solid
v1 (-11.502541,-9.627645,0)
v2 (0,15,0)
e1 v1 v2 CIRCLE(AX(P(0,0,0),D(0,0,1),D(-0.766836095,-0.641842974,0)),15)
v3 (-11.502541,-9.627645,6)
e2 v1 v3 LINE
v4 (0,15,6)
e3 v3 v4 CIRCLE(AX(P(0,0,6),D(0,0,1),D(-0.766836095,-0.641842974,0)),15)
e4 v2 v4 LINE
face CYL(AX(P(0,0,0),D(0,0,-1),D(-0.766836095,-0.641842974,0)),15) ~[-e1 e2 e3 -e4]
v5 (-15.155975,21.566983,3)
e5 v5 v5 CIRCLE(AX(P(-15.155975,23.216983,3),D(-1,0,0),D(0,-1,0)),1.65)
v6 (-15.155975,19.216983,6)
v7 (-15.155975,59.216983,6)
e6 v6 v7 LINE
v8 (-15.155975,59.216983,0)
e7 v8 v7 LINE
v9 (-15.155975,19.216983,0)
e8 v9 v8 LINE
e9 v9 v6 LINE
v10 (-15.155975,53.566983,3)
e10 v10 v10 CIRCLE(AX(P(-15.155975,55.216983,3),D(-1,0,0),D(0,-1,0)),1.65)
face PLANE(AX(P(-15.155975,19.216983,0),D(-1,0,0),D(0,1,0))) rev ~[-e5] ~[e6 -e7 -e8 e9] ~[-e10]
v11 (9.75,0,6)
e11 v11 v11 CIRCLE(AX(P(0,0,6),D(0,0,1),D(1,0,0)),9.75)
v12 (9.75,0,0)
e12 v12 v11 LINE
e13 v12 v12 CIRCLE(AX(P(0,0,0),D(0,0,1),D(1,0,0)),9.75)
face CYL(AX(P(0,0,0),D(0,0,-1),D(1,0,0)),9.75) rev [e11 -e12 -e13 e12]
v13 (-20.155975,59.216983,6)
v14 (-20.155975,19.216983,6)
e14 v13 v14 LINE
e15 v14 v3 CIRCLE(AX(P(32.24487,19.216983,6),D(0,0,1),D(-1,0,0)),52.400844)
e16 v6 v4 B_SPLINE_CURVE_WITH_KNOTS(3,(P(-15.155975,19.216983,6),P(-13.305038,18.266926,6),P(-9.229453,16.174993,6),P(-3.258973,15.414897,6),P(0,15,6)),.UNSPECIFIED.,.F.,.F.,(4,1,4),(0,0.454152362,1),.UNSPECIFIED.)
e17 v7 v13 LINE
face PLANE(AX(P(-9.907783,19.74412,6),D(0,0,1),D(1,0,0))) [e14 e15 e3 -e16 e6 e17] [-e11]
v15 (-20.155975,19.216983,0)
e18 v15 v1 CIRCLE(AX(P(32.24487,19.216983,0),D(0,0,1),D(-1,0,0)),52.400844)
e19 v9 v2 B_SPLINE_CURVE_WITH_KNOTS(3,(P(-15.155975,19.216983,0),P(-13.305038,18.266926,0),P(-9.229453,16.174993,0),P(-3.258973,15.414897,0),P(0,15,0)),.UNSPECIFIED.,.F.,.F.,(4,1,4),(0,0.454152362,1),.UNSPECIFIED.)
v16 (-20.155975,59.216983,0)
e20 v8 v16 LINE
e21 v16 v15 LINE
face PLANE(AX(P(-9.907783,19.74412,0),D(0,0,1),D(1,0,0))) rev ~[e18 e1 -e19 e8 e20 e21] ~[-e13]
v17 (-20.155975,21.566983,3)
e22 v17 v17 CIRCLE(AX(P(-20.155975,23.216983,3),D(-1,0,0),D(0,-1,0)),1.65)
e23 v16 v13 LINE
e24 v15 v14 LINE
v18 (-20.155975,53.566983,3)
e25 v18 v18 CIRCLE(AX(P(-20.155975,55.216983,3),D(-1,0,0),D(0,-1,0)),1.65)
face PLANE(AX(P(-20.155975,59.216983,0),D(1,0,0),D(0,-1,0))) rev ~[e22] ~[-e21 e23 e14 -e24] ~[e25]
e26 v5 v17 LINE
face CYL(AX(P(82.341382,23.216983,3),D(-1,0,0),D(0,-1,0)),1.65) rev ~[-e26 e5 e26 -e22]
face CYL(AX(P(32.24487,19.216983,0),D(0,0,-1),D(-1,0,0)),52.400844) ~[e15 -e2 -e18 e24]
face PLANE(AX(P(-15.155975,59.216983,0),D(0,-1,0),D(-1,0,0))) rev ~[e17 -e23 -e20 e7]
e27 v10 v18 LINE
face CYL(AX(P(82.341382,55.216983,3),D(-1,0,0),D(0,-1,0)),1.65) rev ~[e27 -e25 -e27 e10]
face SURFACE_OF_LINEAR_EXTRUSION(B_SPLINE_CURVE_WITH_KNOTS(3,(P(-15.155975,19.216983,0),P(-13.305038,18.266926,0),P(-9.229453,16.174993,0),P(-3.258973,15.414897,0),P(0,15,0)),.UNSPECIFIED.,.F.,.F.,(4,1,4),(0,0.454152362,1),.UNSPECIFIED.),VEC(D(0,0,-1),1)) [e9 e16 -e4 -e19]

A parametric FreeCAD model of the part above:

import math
import FreeCAD as App
import Part
import Sketcher
from FreeCAD import Vector
Q = App.Units.Quantity

doc = App.newDocument("Part")
body = doc.addObject("PartDesign::Body", "Body")

# Sketch on XY plane
sketch1 = body.newObject("Sketcher::SketchObject", "Sketch")
sketch1.AttachmentSupport = (doc.getObject("XY_Plane"), [""])
sketch1.MapMode = "FlatFace"
sketch1.addGeometry(Part.LineSegment(Vector(-15.155975, 19.216983, 0), Vector(-15.155975, 59.216983, 0)), False)
sketch1.addGeometry(Part.LineSegment(Vector(-15.155975, 59.216983, 0), Vector(-20.155975, 59.216983, 0)), False)
sketch1.addGeometry(Part.LineSegment(Vector(-20.155975, 59.216983, 0), Vector(-20.155975, 19.216983, 0)), False)
sketch1.addGeometry(Part.ArcOfCircle(Part.Circle(Vector(32.24487, 19.216983, 0), Vector(0, 0, 1), 52.400844), math.radians(180), math.radians(213.398653)), False)
sketch1.addGeometry(Part.ArcOfCircle(Part.Circle(Vector(0, 0, 0), Vector(0, 0, 1), 15), math.radians(-140.070617), math.radians(90)), False)
sketch1.addGeometry(Part.BSplineCurve([Vector(-15.155975, 19.216983, 0), Vector(-13.305038, 18.266926, 0), Vector(-9.229453, 16.174993, 0), Vector(-3.258973, 15.414897, 0), Vector(0, 15, 0)], [4, 1, 4], [0, 0.454152362, 1], False, 3, [1, 1, 1, 1, 1], False), False)
sketch1.addGeometry(Part.Circle(Vector(0, 0, 0), Vector(0, 0, 1), 9.75), False)
sketch1.addConstraint(Sketcher.Constraint("Block", 5))
sketch1.addConstraint(Sketcher.Constraint("Coincident", 0, 2, 1, 1))
sketch1.addConstraint(Sketcher.Constraint("Coincident", 1, 2, 2, 1))
sketch1.addConstraint(Sketcher.Constraint("Coincident", 2, 2, 3, 1))
sketch1.addConstraint(Sketcher.Constraint("Coincident", 3, 2, 4, 1))
sketch1.addConstraint(Sketcher.Constraint("Coincident", 4, 2, 5, 2))
sketch1.addConstraint(Sketcher.Constraint("Coincident", 5, 1, 0, 1))
sketch1.addConstraint(Sketcher.Constraint("Vertical", 0))
sketch1.addConstraint(Sketcher.Constraint("Horizontal", 1))
sketch1.addConstraint(Sketcher.Constraint("Vertical", 2))
sketch1.addConstraint(Sketcher.Constraint("Coincident", 4, 3, -1, 1))
sketch1.addConstraint(Sketcher.Constraint("Coincident", 6, 3, -1, 1))
sketch1.addConstraint(Sketcher.Constraint("Diameter", 6, Q("19.5 mm")))
sketch1.addConstraint(Sketcher.Constraint("DistanceX", 1, 2, 1, 1, Q("5 mm")))
sketch1.addConstraint(Sketcher.Constraint("DistanceY", 0, 1, 0, 2, Q("40 mm")))
sketch1.addConstraint(Sketcher.Constraint("DistanceY", 2, 2, 2, 1, Q("40 mm")))
sketch1.addConstraint(Sketcher.Constraint("DistanceY", 3, 3, 0, 2, Q("40 mm")))
sketch1.addConstraint(Sketcher.Constraint("Radius", 3, Q("52.400844 mm")))
pad1 = body.newObject("PartDesign::Pad", "Pad")
pad1.Profile = sketch1
pad1.Length = 6

# Sketch on YZ plane
sketch2 = body.newObject("Sketcher::SketchObject", "Sketch001")
sketch2.AttachmentSupport = (doc.getObject("YZ_Plane"), [""])
sketch2.MapMode = "FlatFace"
sketch2.addGeometry(Part.Circle(Vector(23.2, 3, 0), Vector(0, 0, 1), 1.6), False)
sketch2.addGeometry(Part.Circle(Vector(55.2, 3, 0), Vector(0, 0, 1), 1.6), False)
sketch2.addConstraint(Sketcher.Constraint("Equal", 0, 1))
sketch2.addConstraint(Sketcher.Constraint("Horizontal", 0, 3, 1, 3))
sketch2.addConstraint(Sketcher.Constraint("Diameter", 0, Q("3.3 mm")))
sketch2.addConstraint(Sketcher.Constraint("DistanceY", -1, 1, 0, 3, Q("3 mm")))
sketch2.addConstraint(Sketcher.Constraint("DistanceX", 0, 3, 1, 3, Q("32 mm")))
sketch2.addConstraint(Sketcher.Constraint("DistanceX", -1, 1, 0, 3, Q("23.216983 mm")))
doc.recompute()
hole = body.newObject("PartDesign::Hole", "Hole")
hole.Profile = sketch2
hole.ThreadType = "None"
hole.Diameter = 3.3
hole.DepthType = "ThroughAll"

doc.recompute()
